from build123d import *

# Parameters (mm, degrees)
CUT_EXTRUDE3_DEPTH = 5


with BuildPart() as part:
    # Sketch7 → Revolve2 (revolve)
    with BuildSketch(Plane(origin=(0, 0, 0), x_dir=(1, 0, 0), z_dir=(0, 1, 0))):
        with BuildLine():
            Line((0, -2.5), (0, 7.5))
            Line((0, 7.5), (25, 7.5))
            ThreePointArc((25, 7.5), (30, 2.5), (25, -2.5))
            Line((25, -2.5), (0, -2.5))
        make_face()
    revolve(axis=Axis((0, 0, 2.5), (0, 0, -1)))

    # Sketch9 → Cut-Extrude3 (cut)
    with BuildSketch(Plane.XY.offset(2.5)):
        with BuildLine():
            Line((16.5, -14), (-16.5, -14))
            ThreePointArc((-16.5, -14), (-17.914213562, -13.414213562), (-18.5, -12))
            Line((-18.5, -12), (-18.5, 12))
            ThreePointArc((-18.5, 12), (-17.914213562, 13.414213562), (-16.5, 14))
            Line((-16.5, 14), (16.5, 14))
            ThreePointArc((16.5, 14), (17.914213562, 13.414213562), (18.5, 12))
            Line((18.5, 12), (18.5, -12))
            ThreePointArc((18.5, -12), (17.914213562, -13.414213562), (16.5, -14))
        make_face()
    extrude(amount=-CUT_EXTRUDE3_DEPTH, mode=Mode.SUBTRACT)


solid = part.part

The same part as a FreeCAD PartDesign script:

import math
import FreeCAD as App
import Part
import Sketcher

V = App.Vector

doc = App.newDocument("Part")
params = doc.addObject("Spreadsheet::Sheet", "Params")
for row, (alias, value) in enumerate([
    ("sketch1_radius", "5 mm"),
    ("sketch1_width", "25 mm"),
    ("revolution_angle", "360 deg"),
    ("sketch2_radius", "2 mm"),
    ("sketch2_width", "33 mm"),
    ("sketch2_height", "24 mm"),
    ("pocket1_length", "5 mm"),
], start=1):
    params.set(f"A{row}", alias)
    params.set(f"B{row}", "=" + value)
    params.setAlias(f"B{row}", alias)

body = doc.addObject("PartDesign::Body", "Body")

sketch1 = body.newObject("Sketcher::SketchObject", "Sketch")
sketch1.AttachmentSupport = (doc.getObject("XZ_Plane"), [""])
sketch1.MapMode = "FlatFace"
sketch1.addGeometry(Part.LineSegment(V(0, -8, 0), V(0, 2, 0)), False)
sketch1.addGeometry(Part.LineSegment(V(0, 2, 0), V(25, 2, 0)), False)
sketch1.addGeometry(Part.ArcOfCircle(Part.Circle(V(25, -2, 0), V(0, 0, 1), 5), math.radians(-90), math.radians(90)), False)
sketch1.addGeometry(Part.LineSegment(V(25, -8, 0), V(0, -8, 0)), False)
sketch1.addConstraint(Sketcher.Constraint("Coincident", 0, 2, 1, 1))
sketch1.addConstraint(Sketcher.Constraint("Tangent", 1, 2, 2, 2))
sketch1.addConstraint(Sketcher.Constraint("Tangent", 2, 1, 3, 1))
sketch1.addConstraint(Sketcher.Constraint("Coincident", 3, 2, 0, 1))
sketch1.addConstraint(Sketcher.Constraint("Vertical", 0))
sketch1.addConstraint(Sketcher.Constraint("Horizontal", 1))
sketch1.addConstraint(Sketcher.Constraint("Horizontal", 3))
sketch1.addConstraint(Sketcher.Constraint("PointOnObject", 0, 2, -2))
sketch1.addConstraint(Sketcher.Constraint("Radius", 2, 5.0))
sketch1.addConstraint(Sketcher.Constraint("DistanceX", 1, 1, 1, 2, 25.0))
sketch1.addConstraint(Sketcher.Constraint("DistanceY", 2, 3, -1, 1, 2.5))
sketch1.setExpression("Constraints[8]", "Params.sketch1_radius")
sketch1.setExpression("Constraints[9]", "Params.sketch1_width")
revolution = body.newObject("PartDesign::Revolution", "Revolution")
revolution.Profile = sketch1
revolution.ReferenceAxis = (sketch1, ["V_Axis"])
revolution.setExpression("Angle", "Params.revolution_angle")

sketch2 = body.newObject("Sketcher::SketchObject", "Sketch001")
sketch2.AttachmentSupport = (doc.getObject("XY_Plane"), [""])
sketch2.MapMode = "FlatFace"
sketch2.AttachmentOffset = App.Placement(V(0, 0, 2.5), App.Rotation())
sketch2.addGeometry(Part.LineSegment(V(-16.5, -14, 0), V(16.5, -14, 0)), False)
sketch2.addGeometry(Part.ArcOfCircle(Part.Circle(V(16.5, -12, 0), V(0, 0, 1), 2), math.radians(-90), math.radians(0)), False)
sketch2.addGeometry(Part.LineSegment(V(18.5, -12, 0), V(18.5, 12, 0)), False)
sketch2.addGeometry(Part.ArcOfCircle(Part.Circle(V(16.5, 12, 0), V(0, 0, 1), 2), math.radians(0), math.radians(90)), False)
sketch2.addGeometry(Part.LineSegment(V(16.5, 14, 0), V(-16.5, 14, 0)), False)
sketch2.addGeometry(Part.ArcOfCircle(Part.Circle(V(-16.5, 12, 0), V(0, 0, 1), 2), math.radians(90), math.radians(180)), False)
sketch2.addGeometry(Part.LineSegment(V(-18.5, 12, 0), V(-18.5, -12, 0)), False)
sketch2.addGeometry(Part.ArcOfCircle(Part.Circle(V(-16.5, -12, 0), V(0, 0, 1), 2), math.radians(-180), math.radians(-90)), False)
sketch2.addConstraint(Sketcher.Constraint("Tangent", 0, 2, 1, 1))
sketch2.addConstraint(Sketcher.Constraint("Tangent", 1, 2, 2, 1))
sketch2.addConstraint(Sketcher.Constraint("Tangent", 2, 2, 3, 1))
sketch2.addConstraint(Sketcher.Constraint("Tangent", 3, 2, 4, 1))
sketch2.addConstraint(Sketcher.Constraint("Tangent", 4, 2, 5, 1))
sketch2.addConstraint(Sketcher.Constraint("Tangent", 5, 2, 6, 1))
sketch2.addConstraint(Sketcher.Constraint("Tangent", 6, 2, 7, 1))
sketch2.addConstraint(Sketcher.Constraint("Tangent", 7, 2, 0, 1))
sketch2.addConstraint(Sketcher.Constraint("Horizontal", 0))
sketch2.addConstraint(Sketcher.Constraint("Vertical", 2))
sketch2.addConstraint(Sketcher.Constraint("Horizontal", 4))
sketch2.addConstraint(Sketcher.Constraint("Vertical", 6))
sketch2.addConstraint(Sketcher.Constraint("Equal", 1, 3))
sketch2.addConstraint(Sketcher.Constraint("Equal", 3, 5))
sketch2.addConstraint(Sketcher.Constraint("Equal", 5, 7))
sketch2.addConstraint(Sketcher.Constraint("Symmetric", 1, 3, 5, 3, -1, 1))
sketch2.addConstraint(Sketcher.Constraint("Radius", 1, 2.0))
sketch2.addConstraint(Sketcher.Constraint("DistanceX", 0, 1, 0, 2, 33.0))
sketch2.addConstraint(Sketcher.Constraint("DistanceY", 2, 1, 2, 2, 24.0))
sketch2.setExpression("Constraints[16]", "Params.sketch2_radius")
sketch2.setExpression("Constraints[17]", "Params.sketch2_width")
sketch2.setExpression("Constraints[18]", "Params.sketch2_height")
pocket1 = body.newObject("PartDesign::Pocket", "Pocket")
pocket1.Profile = sketch2
pocket1.setExpression("Length", "Params.pocket1_length")

doc.recompute()
